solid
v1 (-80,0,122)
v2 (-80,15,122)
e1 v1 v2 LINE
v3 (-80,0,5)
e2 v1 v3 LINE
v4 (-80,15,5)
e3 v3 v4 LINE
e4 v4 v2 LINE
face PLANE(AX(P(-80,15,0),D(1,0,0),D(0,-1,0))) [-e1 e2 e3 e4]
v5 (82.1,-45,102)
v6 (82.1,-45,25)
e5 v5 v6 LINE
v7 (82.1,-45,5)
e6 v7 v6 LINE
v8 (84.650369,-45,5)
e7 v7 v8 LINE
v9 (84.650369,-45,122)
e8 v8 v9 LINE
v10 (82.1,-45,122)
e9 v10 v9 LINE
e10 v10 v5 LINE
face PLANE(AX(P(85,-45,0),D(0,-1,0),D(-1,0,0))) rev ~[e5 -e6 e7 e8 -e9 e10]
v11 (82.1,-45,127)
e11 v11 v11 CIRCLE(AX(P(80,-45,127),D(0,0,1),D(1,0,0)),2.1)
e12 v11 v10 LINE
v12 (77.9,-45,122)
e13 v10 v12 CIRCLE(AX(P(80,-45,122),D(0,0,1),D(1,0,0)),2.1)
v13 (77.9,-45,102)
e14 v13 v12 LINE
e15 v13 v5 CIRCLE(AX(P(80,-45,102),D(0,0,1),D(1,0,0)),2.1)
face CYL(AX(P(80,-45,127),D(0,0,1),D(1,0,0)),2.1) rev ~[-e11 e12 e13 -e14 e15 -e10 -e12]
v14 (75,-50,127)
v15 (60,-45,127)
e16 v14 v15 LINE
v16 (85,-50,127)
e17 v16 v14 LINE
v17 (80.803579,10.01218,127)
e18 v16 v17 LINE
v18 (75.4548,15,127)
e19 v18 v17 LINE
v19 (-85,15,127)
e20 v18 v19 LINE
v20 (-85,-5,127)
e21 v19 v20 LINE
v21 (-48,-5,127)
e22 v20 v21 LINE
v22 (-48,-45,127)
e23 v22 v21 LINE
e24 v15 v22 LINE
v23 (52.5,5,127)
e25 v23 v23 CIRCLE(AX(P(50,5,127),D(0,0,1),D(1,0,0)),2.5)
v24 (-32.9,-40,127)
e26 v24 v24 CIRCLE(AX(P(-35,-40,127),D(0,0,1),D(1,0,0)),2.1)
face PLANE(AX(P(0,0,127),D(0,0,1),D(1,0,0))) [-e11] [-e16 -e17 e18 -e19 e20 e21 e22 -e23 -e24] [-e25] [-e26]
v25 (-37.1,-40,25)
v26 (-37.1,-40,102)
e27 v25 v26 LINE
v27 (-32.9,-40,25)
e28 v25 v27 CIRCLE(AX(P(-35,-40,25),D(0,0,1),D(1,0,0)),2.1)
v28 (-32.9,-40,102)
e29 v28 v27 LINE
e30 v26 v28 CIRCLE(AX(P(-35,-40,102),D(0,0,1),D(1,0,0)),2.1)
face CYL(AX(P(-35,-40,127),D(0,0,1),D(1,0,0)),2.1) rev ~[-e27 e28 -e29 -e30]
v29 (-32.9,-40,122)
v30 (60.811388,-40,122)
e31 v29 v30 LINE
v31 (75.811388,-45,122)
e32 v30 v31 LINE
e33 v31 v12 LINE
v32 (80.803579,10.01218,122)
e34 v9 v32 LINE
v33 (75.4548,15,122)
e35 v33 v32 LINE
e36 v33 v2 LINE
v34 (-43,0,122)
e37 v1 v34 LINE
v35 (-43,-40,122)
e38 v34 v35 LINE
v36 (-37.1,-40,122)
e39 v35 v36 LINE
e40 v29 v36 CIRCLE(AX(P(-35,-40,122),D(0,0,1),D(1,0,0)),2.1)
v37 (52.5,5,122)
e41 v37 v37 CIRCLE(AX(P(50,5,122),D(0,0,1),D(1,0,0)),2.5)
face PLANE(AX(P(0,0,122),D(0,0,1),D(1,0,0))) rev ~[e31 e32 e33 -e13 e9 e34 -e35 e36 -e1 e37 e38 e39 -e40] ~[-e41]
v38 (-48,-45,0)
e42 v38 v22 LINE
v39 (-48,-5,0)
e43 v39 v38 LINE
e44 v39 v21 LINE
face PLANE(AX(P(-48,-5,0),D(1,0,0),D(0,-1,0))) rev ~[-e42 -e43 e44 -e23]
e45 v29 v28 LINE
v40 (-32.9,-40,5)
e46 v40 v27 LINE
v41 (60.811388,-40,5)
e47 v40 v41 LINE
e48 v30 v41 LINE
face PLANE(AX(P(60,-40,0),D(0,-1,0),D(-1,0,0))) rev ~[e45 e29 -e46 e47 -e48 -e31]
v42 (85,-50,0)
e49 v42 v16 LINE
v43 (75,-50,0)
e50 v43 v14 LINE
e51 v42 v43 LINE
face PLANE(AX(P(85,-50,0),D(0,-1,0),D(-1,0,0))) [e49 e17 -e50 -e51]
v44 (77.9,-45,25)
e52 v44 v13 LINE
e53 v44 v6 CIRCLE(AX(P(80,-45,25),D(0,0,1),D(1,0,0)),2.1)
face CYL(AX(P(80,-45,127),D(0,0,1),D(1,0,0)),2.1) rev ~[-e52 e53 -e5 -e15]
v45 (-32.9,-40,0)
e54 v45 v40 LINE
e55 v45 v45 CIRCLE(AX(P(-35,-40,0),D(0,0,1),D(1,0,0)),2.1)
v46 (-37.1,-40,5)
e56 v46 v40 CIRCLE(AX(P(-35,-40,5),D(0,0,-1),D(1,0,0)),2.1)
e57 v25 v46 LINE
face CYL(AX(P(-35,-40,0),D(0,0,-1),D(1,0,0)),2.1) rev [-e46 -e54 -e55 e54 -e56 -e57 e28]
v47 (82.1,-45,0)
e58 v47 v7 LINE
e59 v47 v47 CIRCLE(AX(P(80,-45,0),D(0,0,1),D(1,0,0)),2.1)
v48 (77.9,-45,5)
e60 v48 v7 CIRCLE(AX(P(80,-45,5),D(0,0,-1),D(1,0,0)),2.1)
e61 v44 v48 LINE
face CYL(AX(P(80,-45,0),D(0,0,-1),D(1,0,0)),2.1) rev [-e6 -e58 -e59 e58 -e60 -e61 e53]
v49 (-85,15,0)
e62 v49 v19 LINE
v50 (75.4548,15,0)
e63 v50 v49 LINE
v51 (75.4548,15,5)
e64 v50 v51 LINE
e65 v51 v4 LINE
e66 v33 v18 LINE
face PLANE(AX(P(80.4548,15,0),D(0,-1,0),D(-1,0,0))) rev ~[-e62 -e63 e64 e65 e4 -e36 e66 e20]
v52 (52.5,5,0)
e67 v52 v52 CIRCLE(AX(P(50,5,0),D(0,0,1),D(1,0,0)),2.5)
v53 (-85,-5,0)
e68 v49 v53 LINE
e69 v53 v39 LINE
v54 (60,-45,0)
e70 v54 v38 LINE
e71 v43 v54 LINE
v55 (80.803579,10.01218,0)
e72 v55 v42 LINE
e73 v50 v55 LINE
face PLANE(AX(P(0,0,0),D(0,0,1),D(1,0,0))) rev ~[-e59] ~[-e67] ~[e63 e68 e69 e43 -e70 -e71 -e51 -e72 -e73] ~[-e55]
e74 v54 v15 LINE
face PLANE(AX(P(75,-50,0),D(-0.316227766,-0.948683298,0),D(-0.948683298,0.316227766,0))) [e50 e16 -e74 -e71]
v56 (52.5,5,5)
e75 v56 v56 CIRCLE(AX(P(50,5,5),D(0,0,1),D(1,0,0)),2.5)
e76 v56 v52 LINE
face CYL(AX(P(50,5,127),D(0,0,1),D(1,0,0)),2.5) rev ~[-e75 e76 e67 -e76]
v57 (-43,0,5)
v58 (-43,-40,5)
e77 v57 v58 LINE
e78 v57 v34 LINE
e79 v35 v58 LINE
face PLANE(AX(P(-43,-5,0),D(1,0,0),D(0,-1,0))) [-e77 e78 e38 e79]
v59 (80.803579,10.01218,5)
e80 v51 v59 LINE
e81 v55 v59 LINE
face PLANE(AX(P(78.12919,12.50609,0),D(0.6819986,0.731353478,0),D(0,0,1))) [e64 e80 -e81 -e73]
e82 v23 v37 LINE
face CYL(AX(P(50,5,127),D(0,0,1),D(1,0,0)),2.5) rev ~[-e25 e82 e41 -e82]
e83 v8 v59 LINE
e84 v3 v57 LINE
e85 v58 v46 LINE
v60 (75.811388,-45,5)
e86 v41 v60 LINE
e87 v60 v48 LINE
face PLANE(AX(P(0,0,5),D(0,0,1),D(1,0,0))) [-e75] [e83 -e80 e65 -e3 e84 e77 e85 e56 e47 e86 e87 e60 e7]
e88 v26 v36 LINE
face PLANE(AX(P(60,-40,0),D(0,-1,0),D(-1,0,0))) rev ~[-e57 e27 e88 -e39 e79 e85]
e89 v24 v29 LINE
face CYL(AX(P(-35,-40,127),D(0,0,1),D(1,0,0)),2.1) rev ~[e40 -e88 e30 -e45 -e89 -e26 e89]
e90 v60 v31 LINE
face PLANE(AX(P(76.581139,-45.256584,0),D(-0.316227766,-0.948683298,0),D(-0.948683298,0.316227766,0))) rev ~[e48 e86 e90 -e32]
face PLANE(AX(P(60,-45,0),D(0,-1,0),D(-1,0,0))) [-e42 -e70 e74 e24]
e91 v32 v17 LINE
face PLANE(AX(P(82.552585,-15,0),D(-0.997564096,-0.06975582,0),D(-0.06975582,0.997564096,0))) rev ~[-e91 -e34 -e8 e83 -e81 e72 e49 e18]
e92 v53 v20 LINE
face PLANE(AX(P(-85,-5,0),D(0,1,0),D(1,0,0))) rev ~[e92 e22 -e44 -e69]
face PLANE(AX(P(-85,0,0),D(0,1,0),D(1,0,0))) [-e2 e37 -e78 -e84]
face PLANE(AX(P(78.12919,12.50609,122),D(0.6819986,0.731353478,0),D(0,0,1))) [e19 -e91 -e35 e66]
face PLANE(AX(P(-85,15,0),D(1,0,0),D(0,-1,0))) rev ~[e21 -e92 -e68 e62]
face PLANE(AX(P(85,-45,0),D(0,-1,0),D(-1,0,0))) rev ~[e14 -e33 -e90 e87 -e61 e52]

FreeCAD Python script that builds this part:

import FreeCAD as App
import Part
import Sketcher

V = App.Vector
Q = App.Units.Quantity


def edges_at(feature, points):
    """Names of the edges that pass closest to the given points."""
    edges = feature.Shape.Edges
    near = lambda p: min(range(len(edges)), key=lambda i: edges[i].distToShape(Part.Vertex(*p))[0])
    return sorted({f"Edge{near(p) + 1}" for p in points})


def faces_at(feature, points):
    """Names of the faces that lie closest to the given points."""
    faces = feature.Shape.Faces
    near = lambda p: min(range(len(faces)), key=lambda i: faces[i].distToShape(Part.Vertex(*p))[0])
    return sorted({f"Face{near(p) + 1}" for p in points})

doc = App.newDocument("Part")
body = doc.addObject("PartDesign::Body", "Body")

# Sketch on XY plane
sketch1 = body.newObject("Sketcher::SketchObject", "Sketch")
sketch1.AttachmentSupport = (doc.getObject("XY_Plane"), [""])
sketch1.MapMode = "FlatFace"
sketch1.addGeometry(Part.LineSegment(V(-48, -5, 0), V(-48, -45, 0)), False)
sketch1.addGeometry(Part.LineSegment(V(-48, -45, 0), V(60, -45, 0)), False)
sketch1.addGeometry(Part.LineSegment(V(60, -45, 0), V(75, -50, 0)), False)
sketch1.addGeometry(Part.LineSegment(V(75, -50, 0), V(85, -50, 0)), False)
sketch1.addGeometry(Part.LineSegment(V(85, -50, 0), V(80, 15, 0)), False)
sketch1.addGeometry(Part.LineSegment(V(80, 15, 0), V(-85, 15, 0)), False)
sketch1.addGeometry(Part.LineSegment(V(-85, 15, 0), V(-85, -5, 0)), False)
sketch1.addGeometry(Part.LineSegment(V(-85, -5, 0), V(-48, -5, 0)), False)
sketch1.addConstraint(Sketcher.Constraint("Coincident", 0, 2, 1, 1))
sketch1.addConstraint(Sketcher.Constraint("Coincident", 1, 2, 2, 1))
sketch1.addConstraint(Sketcher.Constraint("Coincident", 2, 2, 3, 1))
sketch1.addConstraint(Sketcher.Constraint("Coincident", 3, 2, 4, 1))
sketch1.addConstraint(Sketcher.Constraint("Coincident", 4, 2, 5, 1))
sketch1.addConstraint(Sketcher.Constraint("Coincident", 5, 2, 6, 1))
sketch1.addConstraint(Sketcher.Constraint("Coincident", 6, 2, 7, 1))
sketch1.addConstraint(Sketcher.Constraint("Coincident", 7, 2, 0, 1))
sketch1.addConstraint(Sketcher.Constraint("Vertical", 0))
sketch1.addConstraint(Sketcher.Constraint("Horizontal", 1))
sketch1.addConstraint(Sketcher.Constraint("Horizontal", 3))
sketch1.addConstraint(Sketcher.Constraint("Horizontal", 5))
sketch1.addConstraint(Sketcher.Constraint("Vertical", 6))
sketch1.addConstraint(Sketcher.Constraint("Horizontal", 7))
sketch1.addConstraint(Sketcher.Constraint("DistanceX", 7, 1, 7, 2, 37.0))
sketch1.addConstraint(Sketcher.Constraint("DistanceY", 6, 2, 6, 1, 20.0))
sketch1.addConstraint(Sketcher.Constraint("DistanceY", -1, 1, 4, 2, 15.0))
sketch1.addConstraint(Sketcher.Constraint("DistanceX", 1, 2, 2, 2, 15.0))
sketch1.addConstraint(Sketcher.Constraint("DistanceY", 2, 2, 1, 2, 5.0))
sketch1.addConstraint(Sketcher.Constraint("DistanceX", 1, 2, 3, 2, 25.0))
sketch1.addConstraint(Sketcher.Constraint("DistanceX", 5, 2, 3, 2, 170.0))
sketch1.addConstraint(Sketcher.Constraint("DistanceY", 0, 2, 0, 1, 40.0))
sketch1.addConstraint(Sketcher.Constraint("Angle", 4, Q("94 deg")))
sketch1.addConstraint(Sketcher.Constraint("DistanceX", 0, 2, -1, 1, 48.0))
pad1 = body.newObject("PartDesign::Pad", "Pad")
pad1.Profile = sketch1
pad1.Length = 127
doc.recompute()

thickness = body.newObject("PartDesign::Thickness", "Thickness")
thickness.Base = (pad1, faces_at(pad1, [(83.485, -28.333, 42.333), (25.303, 15, 42.333)]))
thickness.Value = 5
thickness.Reversed = True
thickness.Join = "Intersection"

# Sketch on XY plane
sketch2 = body.newObject("Sketcher::SketchObject", "Sketch001")
sketch2.AttachmentSupport = (doc.getObject("XY_Plane"), [""])
sketch2.MapMode = "FlatFace"
sketch2.addGeometry(Part.Circle(V(-35, -40, 0), V(0, 0, 1), 2.1), False)
sketch2.addGeometry(Part.Circle(V(80, -45, 0), V(0, 0, 1), 2.1), False)
sketch2.addConstraint(Sketcher.Constraint("Equal", 0, 1))
sketch2.addConstraint(Sketcher.Constraint("Diameter", 0, 4.2))
sketch2.addConstraint(Sketcher.Constraint("DistanceX", 0, 3, -1, 1, 35.0))
sketch2.addConstraint(Sketcher.Constraint("DistanceY", 1, 3, 0, 3, 5.0))
sketch2.addConstraint(Sketcher.Constraint("DistanceY", 0, 3, -1, 1, 40.0))
sketch2.addConstraint(Sketcher.Constraint("DistanceX", -1, 1, 1, 3, 80.0))
pocket1 = body.newObject("PartDesign::Pocket", "Pocket")
pocket1.Profile = sketch2
pocket1.Length = 25
pocket1.Reversed = True
doc.recompute()

datumplane = body.newObject("PartDesign::Plane", "DatumPlane")
datumplane.AttachmentSupport = (doc.getObject("XY_Plane"), [""])
datumplane.MapMode = "FlatFace"
datumplane.AttachmentOffset = App.Placement(V(0, 0, 63.5), App.Rotation())
mirrored = body.newObject("PartDesign::Mirrored", "Mirrored")
mirrored.Originals = [pocket1]
mirrored.MirrorPlane = (datumplane, [""])
body.Tip = mirrored

# Sketch on XY plane
sketch3 = body.newObject("Sketcher::SketchObject", "Sketch002")
sketch3.AttachmentSupport = (doc.getObject("XY_Plane"), [""])
sketch3.MapMode = "FlatFace"
sketch3.AttachmentOffset = App.Placement(V(0, 0, 127), App.Rotation())
sketch3.addGeometry(Part.Circle(V(50, 5, 0), V(0, 0, 1), 2.5), False)
sketch3.addConstraint(Sketcher.Constraint("Diameter", 0, 5.0))
sketch3.addConstraint(Sketcher.Constraint("DistanceY", -1, 1, 0, 3, 5.0))
sketch3.addConstraint(Sketcher.Constraint("DistanceX", -1, 1, 0, 3, 50.0))
pocket2 = body.newObject("PartDesign::Pocket", "Pocket001")
pocket2.Profile = sketch3
pocket2.Type = "ThroughAll"
doc.recompute()

chamfer = body.newObject("PartDesign::Chamfer", "Chamfer")
chamfer.Base = (pocket2, edges_at(pocket2, [(80.455, 15, 124.5), (80.455, 15, 2.5)]))
chamfer.Size = 5

# Sketch on XY plane
sketch4 = body.newObject("Sketcher::SketchObject", "Sketch003")
sketch4.AttachmentSupport = (doc.getObject("XY_Plane"), [""])
sketch4.MapMode = "FlatFace"
sketch4.AttachmentOffset = App.Placement(V(0, 0, 127), App.Rotation())
sketch4.addGeometry(Part.Circle(V(-35, -40, 0), V(0, 0, 1), 2.1), False)
sketch4.addGeometry(Part.Circle(V(80, -45, 0), V(0, 0, 1), 2.1), False)
sketch4.addConstraint(Sketcher.Constraint("Equal", 0, 1))
sketch4.addConstraint(Sketcher.Constraint("Diameter", 0, 4.2))
sketch4.addConstraint(Sketcher.Constraint("DistanceX", 0, 3, -1, 1, 35.0))
sketch4.addConstraint(Sketcher.Constraint("DistanceY", 0, 3, -1, 1, 40.0))
sketch4.addConstraint(Sketcher.Constraint("DistanceX", -1, 1, 1, 3, 80.0))
sketch4.addConstraint(Sketcher.Constraint("DistanceY", 1, 3, -1, 1, 45.0))
pocket3 = body.newObject("PartDesign::Pocket", "Pocket002")
pocket3.Profile = sketch4
pocket3.Type = "ThroughAll"

doc.recompute()
